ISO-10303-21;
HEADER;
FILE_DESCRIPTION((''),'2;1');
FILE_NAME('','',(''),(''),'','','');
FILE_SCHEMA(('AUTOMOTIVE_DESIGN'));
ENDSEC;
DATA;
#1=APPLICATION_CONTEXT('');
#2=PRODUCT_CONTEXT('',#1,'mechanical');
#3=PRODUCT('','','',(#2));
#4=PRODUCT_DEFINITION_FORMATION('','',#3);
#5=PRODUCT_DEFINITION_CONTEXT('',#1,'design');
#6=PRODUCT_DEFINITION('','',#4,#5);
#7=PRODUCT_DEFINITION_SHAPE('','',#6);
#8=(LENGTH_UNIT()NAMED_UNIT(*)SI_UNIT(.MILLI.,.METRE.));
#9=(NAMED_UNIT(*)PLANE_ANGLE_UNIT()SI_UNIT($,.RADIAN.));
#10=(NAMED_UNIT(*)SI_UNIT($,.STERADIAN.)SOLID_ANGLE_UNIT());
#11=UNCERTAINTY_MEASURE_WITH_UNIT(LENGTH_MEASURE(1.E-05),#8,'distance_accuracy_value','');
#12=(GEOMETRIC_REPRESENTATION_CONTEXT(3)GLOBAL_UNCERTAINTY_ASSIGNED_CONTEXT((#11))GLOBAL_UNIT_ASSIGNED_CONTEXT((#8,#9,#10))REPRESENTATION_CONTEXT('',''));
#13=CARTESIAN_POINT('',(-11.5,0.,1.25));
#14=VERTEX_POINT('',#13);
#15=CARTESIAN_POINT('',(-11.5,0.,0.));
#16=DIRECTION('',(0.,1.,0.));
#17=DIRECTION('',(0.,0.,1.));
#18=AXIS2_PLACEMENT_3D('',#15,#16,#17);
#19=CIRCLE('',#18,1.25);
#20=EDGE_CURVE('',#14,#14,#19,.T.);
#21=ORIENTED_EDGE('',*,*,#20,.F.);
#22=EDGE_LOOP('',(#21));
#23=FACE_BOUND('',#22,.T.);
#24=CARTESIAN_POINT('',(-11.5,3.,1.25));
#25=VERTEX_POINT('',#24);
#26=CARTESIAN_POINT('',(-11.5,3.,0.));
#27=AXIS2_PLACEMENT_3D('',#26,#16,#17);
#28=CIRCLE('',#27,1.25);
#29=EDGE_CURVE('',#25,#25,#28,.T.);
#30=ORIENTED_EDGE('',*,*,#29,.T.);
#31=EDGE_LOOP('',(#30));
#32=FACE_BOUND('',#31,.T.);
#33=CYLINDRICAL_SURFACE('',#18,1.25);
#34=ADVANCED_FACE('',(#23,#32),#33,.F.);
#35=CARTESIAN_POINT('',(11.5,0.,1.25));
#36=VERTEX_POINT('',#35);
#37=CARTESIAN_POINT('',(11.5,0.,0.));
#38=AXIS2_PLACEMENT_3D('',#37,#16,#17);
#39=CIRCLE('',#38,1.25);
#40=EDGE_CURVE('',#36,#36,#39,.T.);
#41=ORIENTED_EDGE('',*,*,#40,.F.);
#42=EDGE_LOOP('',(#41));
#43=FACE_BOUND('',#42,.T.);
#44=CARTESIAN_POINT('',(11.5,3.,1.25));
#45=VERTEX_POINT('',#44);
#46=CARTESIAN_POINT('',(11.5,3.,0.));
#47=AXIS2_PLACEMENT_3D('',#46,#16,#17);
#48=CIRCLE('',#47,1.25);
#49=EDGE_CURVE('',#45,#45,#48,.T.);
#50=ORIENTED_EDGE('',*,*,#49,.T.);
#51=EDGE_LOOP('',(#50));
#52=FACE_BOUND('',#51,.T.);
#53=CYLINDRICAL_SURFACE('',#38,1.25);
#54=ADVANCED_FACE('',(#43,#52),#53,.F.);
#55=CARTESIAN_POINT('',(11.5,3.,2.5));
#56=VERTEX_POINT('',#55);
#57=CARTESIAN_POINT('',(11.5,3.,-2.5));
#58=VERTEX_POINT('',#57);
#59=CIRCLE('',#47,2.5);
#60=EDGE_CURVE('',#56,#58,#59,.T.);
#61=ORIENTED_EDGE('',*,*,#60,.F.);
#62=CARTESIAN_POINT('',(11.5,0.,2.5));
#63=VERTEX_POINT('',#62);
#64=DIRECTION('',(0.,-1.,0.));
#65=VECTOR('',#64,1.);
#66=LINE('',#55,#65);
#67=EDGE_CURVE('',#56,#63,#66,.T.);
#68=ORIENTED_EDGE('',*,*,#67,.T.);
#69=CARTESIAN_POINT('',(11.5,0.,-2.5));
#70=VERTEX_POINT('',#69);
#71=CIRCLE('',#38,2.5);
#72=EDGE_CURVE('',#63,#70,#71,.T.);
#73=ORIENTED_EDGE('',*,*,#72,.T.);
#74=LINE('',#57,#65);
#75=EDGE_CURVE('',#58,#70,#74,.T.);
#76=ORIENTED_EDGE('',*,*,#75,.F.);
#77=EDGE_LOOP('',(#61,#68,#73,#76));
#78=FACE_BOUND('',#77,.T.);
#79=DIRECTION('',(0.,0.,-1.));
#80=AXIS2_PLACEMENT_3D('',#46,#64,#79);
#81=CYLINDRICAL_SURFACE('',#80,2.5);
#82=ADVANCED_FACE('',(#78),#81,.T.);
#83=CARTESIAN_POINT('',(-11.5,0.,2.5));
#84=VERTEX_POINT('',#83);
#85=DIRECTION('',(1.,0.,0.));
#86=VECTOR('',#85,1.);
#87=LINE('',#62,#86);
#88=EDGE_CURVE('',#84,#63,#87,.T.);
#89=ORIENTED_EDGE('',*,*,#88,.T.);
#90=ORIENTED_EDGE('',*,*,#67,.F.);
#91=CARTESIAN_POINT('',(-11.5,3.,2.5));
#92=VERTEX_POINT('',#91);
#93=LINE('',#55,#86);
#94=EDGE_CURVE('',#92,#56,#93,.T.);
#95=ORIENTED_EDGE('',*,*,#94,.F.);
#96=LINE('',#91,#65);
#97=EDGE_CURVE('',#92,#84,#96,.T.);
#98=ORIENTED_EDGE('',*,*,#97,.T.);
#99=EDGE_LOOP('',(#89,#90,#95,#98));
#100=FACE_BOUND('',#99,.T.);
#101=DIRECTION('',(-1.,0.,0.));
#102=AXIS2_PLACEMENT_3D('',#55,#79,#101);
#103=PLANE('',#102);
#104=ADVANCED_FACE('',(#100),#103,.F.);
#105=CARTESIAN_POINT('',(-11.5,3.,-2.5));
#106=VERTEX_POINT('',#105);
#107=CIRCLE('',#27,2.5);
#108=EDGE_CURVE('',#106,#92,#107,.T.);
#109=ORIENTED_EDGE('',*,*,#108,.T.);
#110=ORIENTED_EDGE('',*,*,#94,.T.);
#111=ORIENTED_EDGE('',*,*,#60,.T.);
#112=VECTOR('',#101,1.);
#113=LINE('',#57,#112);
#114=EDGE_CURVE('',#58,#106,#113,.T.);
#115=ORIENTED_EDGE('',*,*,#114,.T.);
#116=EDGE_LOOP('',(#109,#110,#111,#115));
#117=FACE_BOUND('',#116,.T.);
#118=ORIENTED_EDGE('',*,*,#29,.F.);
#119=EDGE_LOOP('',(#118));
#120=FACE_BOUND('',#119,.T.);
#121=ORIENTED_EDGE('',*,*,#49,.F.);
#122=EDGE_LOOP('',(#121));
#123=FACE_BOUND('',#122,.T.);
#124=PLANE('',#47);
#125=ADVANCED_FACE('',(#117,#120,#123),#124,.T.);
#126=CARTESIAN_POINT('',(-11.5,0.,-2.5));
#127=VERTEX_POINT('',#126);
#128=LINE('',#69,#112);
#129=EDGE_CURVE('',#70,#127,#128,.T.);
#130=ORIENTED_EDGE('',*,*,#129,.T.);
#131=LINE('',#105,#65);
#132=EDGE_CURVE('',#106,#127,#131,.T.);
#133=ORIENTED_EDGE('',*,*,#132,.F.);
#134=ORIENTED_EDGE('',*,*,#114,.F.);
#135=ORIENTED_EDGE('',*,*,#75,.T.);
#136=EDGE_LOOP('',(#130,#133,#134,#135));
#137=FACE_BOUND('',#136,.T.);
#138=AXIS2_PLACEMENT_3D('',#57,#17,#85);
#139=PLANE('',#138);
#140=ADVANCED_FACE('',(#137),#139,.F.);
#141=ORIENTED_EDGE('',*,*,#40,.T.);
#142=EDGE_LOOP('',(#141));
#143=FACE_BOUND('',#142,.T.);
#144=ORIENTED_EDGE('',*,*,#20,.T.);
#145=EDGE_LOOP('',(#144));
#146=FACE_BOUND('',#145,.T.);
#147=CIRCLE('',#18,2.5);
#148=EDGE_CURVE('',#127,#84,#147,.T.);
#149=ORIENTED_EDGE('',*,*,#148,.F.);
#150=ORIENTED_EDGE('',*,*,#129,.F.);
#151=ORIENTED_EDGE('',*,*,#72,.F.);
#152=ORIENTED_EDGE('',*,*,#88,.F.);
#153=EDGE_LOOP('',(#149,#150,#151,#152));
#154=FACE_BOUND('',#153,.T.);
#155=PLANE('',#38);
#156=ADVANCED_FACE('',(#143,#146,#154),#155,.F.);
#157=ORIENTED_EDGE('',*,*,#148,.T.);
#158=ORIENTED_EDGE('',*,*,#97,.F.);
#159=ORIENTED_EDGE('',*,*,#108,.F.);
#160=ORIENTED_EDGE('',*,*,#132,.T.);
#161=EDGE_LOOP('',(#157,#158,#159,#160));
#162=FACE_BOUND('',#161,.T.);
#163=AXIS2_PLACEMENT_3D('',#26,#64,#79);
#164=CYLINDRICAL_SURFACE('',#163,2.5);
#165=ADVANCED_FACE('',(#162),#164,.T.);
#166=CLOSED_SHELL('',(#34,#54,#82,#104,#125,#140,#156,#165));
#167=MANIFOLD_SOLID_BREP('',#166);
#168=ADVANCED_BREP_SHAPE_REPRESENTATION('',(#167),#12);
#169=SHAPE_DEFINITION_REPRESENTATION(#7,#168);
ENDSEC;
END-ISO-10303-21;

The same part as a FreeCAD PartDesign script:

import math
import FreeCAD as App
import Part
import Sketcher

V = App.Vector
Q = App.Units.Quantity

doc = App.newDocument("Part")
body = doc.addObject("PartDesign::Body", "Body")

# Sketch on XZ plane
sketch1 = doc.addObject("Sketcher::SketchObject", "Sketch")
body.addObject(sketch1)
sketch1.AttachmentSupport = (doc.XZ_Plane, [""])
sketch1.MapMode = "FlatFace"
sketch1.addGeometry([
    Part.LineSegment(V(-11.5, 2.5, 0), V(11.5, 2.5, 0)),
    Part.ArcOfCircle(Part.Circle(V(11.5, 0, 0), V(0, 0, 1), 2.5), math.radians(-90), math.radians(90)),
    Part.LineSegment(V(11.5, -2.5, 0), V(-11.5, -2.5, 0)),
    Part.ArcOfCircle(Part.Circle(V(-11.5, 0, 0), V(0, 0, 1), 2.5), math.radians(90), math.radians(270)),
], False)
sketch1.addConstraint([
    Sketcher.Constraint("Tangent", 0, 2, 1, 2),
    Sketcher.Constraint("Tangent", 1, 1, 2, 1),
    Sketcher.Constraint("Tangent", 2, 2, 3, 2),
    Sketcher.Constraint("Tangent", 3, 1, 0, 1),
    Sketcher.Constraint("Horizontal", 0),
    Sketcher.Constraint("Horizontal", 2),
    Sketcher.Constraint("Symmetric", 1, 3, 3, 3, -1, 1),
    Sketcher.Constraint("Radius", 1, Q("2.5 mm")),
    Sketcher.Constraint("DistanceX", 0, 1, 0, 2, Q("23 mm")),
])
pad1 = doc.addObject("PartDesign::Pad", "Pad")
body.addObject(pad1)
pad1.Profile = sketch1
pad1.Length = 3
pad1.Reversed = True

# Sketch on XZ plane
sketch2 = doc.addObject("Sketcher::SketchObject", "Sketch001")
body.addObject(sketch2)
sketch2.AttachmentSupport = (doc.XZ_Plane, [""])
sketch2.MapMode = "FlatFace"
sketch2.AttachmentOffset = App.Placement(V(0, 0, -3), App.Rotation())
sketch2.addGeometry([
    Part.Circle(V(11.5, 0, 0), V(0, 0, 1), 1.25),
    Part.Circle(V(-11.5, 0, 0), V(0, 0, 1), 1.25),
], False)
sketch2.addConstraint([
    Sketcher.Constraint("Equal", 0, 1),
    Sketcher.Constraint("Symmetric", 0, 3, 1, 3, -1, 1),
    Sketcher.Constraint("PointOnObject", 0, 3, -1),
    Sketcher.Constraint("Diameter", 0, Q("2.5 mm")),
    Sketcher.Constraint("DistanceX", 1, 3, 0, 3, Q("23 mm")),
])
pocket1 = doc.addObject("PartDesign::Pocket", "Pocket")
body.addObject(pocket1)
pocket1.Profile = sketch2
pocket1.Type = "ThroughAll"
pocket1.Reversed = True

doc.recompute()
